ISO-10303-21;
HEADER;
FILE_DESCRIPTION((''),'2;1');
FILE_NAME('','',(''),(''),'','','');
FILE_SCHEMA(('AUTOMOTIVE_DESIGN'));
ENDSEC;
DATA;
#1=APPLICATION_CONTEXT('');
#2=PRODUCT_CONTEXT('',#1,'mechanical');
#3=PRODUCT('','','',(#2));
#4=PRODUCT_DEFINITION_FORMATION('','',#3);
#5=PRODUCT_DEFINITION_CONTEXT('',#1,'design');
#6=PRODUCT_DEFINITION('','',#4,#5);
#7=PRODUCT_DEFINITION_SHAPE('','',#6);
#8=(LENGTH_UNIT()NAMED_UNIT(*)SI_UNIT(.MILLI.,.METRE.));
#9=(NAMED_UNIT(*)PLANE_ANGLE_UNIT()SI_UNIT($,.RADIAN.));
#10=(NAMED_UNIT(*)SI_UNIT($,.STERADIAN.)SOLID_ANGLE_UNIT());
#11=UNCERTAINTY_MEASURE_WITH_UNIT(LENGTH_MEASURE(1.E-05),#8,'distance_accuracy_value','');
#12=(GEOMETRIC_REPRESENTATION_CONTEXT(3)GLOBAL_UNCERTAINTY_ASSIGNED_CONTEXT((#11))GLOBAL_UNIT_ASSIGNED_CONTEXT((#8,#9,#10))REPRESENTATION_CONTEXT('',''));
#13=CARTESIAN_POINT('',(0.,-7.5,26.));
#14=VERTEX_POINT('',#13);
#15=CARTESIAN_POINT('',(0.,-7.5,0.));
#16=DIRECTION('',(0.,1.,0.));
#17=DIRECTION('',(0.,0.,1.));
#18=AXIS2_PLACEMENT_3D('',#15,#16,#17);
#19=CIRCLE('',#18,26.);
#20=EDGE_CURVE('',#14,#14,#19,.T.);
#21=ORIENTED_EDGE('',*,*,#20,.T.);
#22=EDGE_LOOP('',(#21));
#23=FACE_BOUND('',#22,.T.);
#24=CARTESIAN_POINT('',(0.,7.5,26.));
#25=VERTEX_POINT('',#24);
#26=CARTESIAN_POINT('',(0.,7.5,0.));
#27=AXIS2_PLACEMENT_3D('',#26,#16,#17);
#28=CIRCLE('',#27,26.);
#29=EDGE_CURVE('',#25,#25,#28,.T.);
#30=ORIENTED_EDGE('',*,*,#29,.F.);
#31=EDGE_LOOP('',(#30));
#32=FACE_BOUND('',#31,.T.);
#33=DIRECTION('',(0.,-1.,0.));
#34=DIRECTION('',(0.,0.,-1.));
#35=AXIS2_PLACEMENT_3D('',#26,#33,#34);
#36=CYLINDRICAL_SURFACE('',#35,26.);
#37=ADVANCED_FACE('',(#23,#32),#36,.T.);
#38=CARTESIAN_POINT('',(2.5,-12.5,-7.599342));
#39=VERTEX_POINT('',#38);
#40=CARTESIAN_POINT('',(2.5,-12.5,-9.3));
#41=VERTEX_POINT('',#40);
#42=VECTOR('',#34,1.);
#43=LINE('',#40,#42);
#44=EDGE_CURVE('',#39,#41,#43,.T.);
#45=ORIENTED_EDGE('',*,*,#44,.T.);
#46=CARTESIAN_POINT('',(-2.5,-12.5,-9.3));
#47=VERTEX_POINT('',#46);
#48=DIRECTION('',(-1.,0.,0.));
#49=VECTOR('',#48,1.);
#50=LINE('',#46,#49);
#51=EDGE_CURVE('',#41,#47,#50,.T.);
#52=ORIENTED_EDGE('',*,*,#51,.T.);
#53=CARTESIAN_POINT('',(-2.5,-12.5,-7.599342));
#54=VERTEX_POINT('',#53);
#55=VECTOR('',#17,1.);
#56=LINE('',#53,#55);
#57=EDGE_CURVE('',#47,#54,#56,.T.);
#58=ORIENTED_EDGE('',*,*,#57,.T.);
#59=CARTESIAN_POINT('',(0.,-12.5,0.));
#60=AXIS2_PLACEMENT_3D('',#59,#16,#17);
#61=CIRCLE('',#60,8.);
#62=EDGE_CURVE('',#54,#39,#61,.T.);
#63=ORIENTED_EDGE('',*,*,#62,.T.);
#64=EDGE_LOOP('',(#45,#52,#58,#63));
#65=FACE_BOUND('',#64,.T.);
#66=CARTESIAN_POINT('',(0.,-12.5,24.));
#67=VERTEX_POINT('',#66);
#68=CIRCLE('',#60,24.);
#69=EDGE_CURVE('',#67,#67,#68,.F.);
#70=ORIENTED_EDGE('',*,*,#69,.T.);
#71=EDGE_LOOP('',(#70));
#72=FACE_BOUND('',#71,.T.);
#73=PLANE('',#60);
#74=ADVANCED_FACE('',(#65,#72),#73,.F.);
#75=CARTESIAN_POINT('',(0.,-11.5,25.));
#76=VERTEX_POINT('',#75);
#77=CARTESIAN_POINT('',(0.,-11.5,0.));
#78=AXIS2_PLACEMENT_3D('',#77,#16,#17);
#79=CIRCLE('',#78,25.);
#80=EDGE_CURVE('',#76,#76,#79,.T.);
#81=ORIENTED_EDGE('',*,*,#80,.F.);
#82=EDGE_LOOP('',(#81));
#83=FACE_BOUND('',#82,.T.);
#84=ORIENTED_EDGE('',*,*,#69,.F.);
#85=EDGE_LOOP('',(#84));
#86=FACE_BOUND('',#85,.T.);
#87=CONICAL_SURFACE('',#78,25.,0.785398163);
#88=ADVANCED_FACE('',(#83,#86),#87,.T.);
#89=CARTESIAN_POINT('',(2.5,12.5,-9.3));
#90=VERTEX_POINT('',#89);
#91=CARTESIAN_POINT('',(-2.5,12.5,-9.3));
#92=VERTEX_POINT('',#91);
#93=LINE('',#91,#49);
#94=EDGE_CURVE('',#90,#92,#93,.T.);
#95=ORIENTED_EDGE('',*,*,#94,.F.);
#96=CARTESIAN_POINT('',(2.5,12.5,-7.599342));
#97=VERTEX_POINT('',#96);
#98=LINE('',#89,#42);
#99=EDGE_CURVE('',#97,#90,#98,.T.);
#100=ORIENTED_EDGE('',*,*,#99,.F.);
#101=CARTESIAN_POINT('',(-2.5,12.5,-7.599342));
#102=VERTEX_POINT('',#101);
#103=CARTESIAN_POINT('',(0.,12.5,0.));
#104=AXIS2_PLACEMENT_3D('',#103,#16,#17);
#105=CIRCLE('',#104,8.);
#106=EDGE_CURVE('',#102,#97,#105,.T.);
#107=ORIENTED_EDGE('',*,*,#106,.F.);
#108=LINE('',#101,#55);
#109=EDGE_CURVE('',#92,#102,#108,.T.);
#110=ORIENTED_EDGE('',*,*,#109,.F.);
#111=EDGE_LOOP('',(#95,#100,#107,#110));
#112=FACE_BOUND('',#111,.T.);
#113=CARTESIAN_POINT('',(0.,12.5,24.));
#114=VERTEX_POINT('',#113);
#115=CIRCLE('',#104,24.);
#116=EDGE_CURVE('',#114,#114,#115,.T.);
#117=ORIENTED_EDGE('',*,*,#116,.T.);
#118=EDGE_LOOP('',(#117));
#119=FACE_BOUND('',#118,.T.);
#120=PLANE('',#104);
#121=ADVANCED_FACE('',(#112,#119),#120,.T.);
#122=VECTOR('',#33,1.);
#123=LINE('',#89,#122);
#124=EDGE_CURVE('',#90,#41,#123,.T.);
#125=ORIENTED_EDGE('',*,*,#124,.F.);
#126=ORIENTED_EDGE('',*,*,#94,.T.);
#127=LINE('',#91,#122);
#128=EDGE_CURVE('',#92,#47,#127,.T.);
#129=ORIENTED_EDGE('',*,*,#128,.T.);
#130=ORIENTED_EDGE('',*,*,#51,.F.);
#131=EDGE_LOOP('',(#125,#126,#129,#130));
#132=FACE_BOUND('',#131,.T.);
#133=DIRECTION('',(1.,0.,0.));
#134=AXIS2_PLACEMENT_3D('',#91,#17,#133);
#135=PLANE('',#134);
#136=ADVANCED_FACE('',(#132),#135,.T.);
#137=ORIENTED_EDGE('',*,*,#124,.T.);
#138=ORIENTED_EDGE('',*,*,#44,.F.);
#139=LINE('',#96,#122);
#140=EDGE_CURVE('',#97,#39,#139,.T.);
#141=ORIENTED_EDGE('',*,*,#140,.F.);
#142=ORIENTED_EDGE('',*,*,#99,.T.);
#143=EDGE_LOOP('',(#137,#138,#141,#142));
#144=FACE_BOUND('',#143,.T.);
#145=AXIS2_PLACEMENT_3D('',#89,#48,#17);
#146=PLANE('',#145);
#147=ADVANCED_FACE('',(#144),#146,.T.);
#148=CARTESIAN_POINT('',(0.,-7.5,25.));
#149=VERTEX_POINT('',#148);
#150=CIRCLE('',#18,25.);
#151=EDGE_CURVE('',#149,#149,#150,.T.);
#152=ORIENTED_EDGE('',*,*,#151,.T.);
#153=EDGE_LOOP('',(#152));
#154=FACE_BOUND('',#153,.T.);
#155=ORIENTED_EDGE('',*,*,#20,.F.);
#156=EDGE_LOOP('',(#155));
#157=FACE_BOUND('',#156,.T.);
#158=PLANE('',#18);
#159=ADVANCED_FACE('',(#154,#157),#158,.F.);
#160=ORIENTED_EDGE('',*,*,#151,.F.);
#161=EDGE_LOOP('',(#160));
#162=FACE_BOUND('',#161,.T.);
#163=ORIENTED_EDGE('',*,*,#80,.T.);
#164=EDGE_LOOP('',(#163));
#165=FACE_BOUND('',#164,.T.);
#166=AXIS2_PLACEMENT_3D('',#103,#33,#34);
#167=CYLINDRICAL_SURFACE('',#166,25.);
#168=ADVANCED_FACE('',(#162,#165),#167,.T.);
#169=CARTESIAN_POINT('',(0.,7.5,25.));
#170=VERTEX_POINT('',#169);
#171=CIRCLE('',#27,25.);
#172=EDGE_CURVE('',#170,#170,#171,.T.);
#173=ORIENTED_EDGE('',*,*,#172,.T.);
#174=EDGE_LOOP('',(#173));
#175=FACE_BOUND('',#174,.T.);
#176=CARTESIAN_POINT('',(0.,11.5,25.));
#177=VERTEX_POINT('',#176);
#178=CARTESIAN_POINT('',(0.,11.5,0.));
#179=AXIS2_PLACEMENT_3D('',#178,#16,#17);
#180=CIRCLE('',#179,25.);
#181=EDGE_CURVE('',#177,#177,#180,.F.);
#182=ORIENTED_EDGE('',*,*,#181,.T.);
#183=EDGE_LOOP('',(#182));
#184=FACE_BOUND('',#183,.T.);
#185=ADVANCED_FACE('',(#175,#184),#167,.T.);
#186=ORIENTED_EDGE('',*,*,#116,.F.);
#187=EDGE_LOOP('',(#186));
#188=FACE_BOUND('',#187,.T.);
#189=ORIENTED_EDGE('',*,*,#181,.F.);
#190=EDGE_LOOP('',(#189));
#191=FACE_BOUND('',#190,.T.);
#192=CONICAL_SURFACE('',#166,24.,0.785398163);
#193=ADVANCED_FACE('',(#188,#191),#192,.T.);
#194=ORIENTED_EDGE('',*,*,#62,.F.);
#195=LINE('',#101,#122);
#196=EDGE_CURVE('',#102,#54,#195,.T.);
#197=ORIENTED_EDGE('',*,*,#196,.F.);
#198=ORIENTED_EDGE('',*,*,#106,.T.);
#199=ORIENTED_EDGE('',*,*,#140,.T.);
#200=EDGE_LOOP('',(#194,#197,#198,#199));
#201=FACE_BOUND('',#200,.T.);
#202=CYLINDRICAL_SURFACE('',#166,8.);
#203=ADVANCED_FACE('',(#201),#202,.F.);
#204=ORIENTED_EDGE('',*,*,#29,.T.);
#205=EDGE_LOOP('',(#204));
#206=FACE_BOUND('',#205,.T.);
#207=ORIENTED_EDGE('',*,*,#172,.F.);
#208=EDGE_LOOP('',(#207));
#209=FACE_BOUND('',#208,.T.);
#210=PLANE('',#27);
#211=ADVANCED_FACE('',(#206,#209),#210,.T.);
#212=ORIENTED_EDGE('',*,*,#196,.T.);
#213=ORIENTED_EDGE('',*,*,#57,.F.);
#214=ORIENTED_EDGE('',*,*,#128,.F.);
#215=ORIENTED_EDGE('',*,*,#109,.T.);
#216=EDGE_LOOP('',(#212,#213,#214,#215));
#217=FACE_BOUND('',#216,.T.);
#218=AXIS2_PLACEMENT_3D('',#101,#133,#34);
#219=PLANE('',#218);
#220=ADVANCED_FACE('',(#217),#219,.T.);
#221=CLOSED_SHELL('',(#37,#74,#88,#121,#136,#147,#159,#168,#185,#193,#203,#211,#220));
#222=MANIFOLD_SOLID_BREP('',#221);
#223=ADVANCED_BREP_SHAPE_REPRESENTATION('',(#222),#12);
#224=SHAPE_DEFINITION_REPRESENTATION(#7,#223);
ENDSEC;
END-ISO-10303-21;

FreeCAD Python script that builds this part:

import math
import FreeCAD as App
import Part
import Sketcher
Q = App.Units.Quantity


def edges_at(feature, points):
    """Names of the edges that pass closest to the given points."""
    edges = feature.Shape.Edges
    near = lambda p: min(range(len(edges)), key=lambda i: edges[i].distToShape(Part.Vertex(*p))[0])
    return sorted({f"Edge{near(p) + 1}" for p in points})

doc = App.newDocument("Part")
params = doc.addObject("Spreadsheet::Sheet", "Params")
for row, (alias, value) in enumerate([
    ("sketch1_diameter", "50 mm"),
    ("sketch1_radius", "8 mm"),
    ("sketch1_width", "5 mm"),
    ("pad1_length", "25 mm"),
    ("sketch2_diameter", "52 mm"),
    ("sketch2_diameter2", "48 mm"),
    ("pad2_length", "15 mm"),
    ("chamfer_size", "1 mm"),
], start=1):
    params.set(f"A{row}", alias)
    params.set(f"B{row}", "=" + value)
    params.setAlias(f"B{row}", alias)

body = doc.addObject("PartDesign::Body", "Body")

sketch1 = doc.addObject("Sketcher::SketchObject", "Sketch")
body.addObject(sketch1)
sketch1.AttachmentSupport = (doc.XZ_Plane, [""])
sketch1.MapMode = "FlatFace"
sketch1.addGeometry([
    Part.Circle(App.Vector(0, 0, 0), App.Vector(0, 0, 1), 25),
    Part.ArcOfCircle(Part.Circle(App.Vector(0, 0, 0), App.Vector(0, 0, 1), 8), math.radians(-72), math.radians(252)),
    Part.LineSegment(App.Vector(-2.5, -7.6, 0), App.Vector(-2.5, -9.3, 0)),
    Part.LineSegment(App.Vector(-2.5, -9.3, 0), App.Vector(2.5, -9.3, 0)),
    Part.LineSegment(App.Vector(2.5, -9.3, 0), App.Vector(2.5, -7.6, 0)),
], False)
sketch1.addConstraint([
    Sketcher.Constraint("Coincident", 1, 2, 2, 1),
    Sketcher.Constraint("Coincident", 2, 2, 3, 1),
    Sketcher.Constraint("Coincident", 3, 2, 4, 1),
    Sketcher.Constraint("Coincident", 4, 2, 1, 1),
    Sketcher.Constraint("Vertical", 2),
    Sketcher.Constraint("Horizontal", 3),
    Sketcher.Constraint("Vertical", 4),
    Sketcher.Constraint("Coincident", 0, 3, -1, 1),
    Sketcher.Constraint("Coincident", 1, 3, -1, 1),
    Sketcher.Constraint("Horizontal", 1, 2, 4, 2),
    Sketcher.Constraint("Diameter", 0, Q("50 mm")),
    Sketcher.Constraint("Radius", 1, Q("8 mm")),
    Sketcher.Constraint("DistanceX", 3, 1, 3, 2, Q("5 mm")),
    Sketcher.Constraint("DistanceY", 2, 2, -1, 1, Q("9.3 mm")),
])
sketch1.setExpression("Constraints[10]", "Params.sketch1_diameter")
sketch1.setExpression("Constraints[11]", "Params.sketch1_radius")
sketch1.setExpression("Constraints[12]", "Params.sketch1_width")
pad1 = doc.addObject("PartDesign::Pad", "Pad")
body.addObject(pad1)
pad1.Profile = sketch1
pad1.setExpression("Length", "Params.pad1_length")
pad1.Midplane = True

sketch2 = doc.addObject("Sketcher::SketchObject", "Sketch001")
body.addObject(sketch2)
sketch2.AttachmentSupport = (doc.XZ_Plane, [""])
sketch2.MapMode = "FlatFace"
sketch2.addGeometry([
    Part.Circle(App.Vector(0, 0, 0), App.Vector(0, 0, 1), 26),
    Part.Circle(App.Vector(0, 0, 0), App.Vector(0, 0, 1), 24),
], False)
sketch2.addConstraint([
    Sketcher.Constraint("Coincident", 0, 3, -1, 1),
    Sketcher.Constraint("Coincident", 1, 3, -1, 1),
    Sketcher.Constraint("Diameter", 0, Q("52 mm")),
    Sketcher.Constraint("Diameter", 1, Q("48 mm")),
])
sketch2.setExpression("Constraints[2]", "Params.sketch2_diameter")
sketch2.setExpression("Constraints[3]", "Params.sketch2_diameter2")
pad2 = doc.addObject("PartDesign::Pad", "Pad001")
body.addObject(pad2)
pad2.Profile = sketch2
pad2.setExpression("Length", "Params.pad2_length")
pad2.Midplane = True
doc.recompute()

chamfer = doc.addObject("PartDesign::Chamfer", "Chamfer")
body.addObject(chamfer)
chamfer.Base = (pad2, edges_at(pad2, [(0, -12.5, -25), (0, 12.5, -25)]))
chamfer.setExpression("Size", "Params.chamfer_size")

doc.recompute()
